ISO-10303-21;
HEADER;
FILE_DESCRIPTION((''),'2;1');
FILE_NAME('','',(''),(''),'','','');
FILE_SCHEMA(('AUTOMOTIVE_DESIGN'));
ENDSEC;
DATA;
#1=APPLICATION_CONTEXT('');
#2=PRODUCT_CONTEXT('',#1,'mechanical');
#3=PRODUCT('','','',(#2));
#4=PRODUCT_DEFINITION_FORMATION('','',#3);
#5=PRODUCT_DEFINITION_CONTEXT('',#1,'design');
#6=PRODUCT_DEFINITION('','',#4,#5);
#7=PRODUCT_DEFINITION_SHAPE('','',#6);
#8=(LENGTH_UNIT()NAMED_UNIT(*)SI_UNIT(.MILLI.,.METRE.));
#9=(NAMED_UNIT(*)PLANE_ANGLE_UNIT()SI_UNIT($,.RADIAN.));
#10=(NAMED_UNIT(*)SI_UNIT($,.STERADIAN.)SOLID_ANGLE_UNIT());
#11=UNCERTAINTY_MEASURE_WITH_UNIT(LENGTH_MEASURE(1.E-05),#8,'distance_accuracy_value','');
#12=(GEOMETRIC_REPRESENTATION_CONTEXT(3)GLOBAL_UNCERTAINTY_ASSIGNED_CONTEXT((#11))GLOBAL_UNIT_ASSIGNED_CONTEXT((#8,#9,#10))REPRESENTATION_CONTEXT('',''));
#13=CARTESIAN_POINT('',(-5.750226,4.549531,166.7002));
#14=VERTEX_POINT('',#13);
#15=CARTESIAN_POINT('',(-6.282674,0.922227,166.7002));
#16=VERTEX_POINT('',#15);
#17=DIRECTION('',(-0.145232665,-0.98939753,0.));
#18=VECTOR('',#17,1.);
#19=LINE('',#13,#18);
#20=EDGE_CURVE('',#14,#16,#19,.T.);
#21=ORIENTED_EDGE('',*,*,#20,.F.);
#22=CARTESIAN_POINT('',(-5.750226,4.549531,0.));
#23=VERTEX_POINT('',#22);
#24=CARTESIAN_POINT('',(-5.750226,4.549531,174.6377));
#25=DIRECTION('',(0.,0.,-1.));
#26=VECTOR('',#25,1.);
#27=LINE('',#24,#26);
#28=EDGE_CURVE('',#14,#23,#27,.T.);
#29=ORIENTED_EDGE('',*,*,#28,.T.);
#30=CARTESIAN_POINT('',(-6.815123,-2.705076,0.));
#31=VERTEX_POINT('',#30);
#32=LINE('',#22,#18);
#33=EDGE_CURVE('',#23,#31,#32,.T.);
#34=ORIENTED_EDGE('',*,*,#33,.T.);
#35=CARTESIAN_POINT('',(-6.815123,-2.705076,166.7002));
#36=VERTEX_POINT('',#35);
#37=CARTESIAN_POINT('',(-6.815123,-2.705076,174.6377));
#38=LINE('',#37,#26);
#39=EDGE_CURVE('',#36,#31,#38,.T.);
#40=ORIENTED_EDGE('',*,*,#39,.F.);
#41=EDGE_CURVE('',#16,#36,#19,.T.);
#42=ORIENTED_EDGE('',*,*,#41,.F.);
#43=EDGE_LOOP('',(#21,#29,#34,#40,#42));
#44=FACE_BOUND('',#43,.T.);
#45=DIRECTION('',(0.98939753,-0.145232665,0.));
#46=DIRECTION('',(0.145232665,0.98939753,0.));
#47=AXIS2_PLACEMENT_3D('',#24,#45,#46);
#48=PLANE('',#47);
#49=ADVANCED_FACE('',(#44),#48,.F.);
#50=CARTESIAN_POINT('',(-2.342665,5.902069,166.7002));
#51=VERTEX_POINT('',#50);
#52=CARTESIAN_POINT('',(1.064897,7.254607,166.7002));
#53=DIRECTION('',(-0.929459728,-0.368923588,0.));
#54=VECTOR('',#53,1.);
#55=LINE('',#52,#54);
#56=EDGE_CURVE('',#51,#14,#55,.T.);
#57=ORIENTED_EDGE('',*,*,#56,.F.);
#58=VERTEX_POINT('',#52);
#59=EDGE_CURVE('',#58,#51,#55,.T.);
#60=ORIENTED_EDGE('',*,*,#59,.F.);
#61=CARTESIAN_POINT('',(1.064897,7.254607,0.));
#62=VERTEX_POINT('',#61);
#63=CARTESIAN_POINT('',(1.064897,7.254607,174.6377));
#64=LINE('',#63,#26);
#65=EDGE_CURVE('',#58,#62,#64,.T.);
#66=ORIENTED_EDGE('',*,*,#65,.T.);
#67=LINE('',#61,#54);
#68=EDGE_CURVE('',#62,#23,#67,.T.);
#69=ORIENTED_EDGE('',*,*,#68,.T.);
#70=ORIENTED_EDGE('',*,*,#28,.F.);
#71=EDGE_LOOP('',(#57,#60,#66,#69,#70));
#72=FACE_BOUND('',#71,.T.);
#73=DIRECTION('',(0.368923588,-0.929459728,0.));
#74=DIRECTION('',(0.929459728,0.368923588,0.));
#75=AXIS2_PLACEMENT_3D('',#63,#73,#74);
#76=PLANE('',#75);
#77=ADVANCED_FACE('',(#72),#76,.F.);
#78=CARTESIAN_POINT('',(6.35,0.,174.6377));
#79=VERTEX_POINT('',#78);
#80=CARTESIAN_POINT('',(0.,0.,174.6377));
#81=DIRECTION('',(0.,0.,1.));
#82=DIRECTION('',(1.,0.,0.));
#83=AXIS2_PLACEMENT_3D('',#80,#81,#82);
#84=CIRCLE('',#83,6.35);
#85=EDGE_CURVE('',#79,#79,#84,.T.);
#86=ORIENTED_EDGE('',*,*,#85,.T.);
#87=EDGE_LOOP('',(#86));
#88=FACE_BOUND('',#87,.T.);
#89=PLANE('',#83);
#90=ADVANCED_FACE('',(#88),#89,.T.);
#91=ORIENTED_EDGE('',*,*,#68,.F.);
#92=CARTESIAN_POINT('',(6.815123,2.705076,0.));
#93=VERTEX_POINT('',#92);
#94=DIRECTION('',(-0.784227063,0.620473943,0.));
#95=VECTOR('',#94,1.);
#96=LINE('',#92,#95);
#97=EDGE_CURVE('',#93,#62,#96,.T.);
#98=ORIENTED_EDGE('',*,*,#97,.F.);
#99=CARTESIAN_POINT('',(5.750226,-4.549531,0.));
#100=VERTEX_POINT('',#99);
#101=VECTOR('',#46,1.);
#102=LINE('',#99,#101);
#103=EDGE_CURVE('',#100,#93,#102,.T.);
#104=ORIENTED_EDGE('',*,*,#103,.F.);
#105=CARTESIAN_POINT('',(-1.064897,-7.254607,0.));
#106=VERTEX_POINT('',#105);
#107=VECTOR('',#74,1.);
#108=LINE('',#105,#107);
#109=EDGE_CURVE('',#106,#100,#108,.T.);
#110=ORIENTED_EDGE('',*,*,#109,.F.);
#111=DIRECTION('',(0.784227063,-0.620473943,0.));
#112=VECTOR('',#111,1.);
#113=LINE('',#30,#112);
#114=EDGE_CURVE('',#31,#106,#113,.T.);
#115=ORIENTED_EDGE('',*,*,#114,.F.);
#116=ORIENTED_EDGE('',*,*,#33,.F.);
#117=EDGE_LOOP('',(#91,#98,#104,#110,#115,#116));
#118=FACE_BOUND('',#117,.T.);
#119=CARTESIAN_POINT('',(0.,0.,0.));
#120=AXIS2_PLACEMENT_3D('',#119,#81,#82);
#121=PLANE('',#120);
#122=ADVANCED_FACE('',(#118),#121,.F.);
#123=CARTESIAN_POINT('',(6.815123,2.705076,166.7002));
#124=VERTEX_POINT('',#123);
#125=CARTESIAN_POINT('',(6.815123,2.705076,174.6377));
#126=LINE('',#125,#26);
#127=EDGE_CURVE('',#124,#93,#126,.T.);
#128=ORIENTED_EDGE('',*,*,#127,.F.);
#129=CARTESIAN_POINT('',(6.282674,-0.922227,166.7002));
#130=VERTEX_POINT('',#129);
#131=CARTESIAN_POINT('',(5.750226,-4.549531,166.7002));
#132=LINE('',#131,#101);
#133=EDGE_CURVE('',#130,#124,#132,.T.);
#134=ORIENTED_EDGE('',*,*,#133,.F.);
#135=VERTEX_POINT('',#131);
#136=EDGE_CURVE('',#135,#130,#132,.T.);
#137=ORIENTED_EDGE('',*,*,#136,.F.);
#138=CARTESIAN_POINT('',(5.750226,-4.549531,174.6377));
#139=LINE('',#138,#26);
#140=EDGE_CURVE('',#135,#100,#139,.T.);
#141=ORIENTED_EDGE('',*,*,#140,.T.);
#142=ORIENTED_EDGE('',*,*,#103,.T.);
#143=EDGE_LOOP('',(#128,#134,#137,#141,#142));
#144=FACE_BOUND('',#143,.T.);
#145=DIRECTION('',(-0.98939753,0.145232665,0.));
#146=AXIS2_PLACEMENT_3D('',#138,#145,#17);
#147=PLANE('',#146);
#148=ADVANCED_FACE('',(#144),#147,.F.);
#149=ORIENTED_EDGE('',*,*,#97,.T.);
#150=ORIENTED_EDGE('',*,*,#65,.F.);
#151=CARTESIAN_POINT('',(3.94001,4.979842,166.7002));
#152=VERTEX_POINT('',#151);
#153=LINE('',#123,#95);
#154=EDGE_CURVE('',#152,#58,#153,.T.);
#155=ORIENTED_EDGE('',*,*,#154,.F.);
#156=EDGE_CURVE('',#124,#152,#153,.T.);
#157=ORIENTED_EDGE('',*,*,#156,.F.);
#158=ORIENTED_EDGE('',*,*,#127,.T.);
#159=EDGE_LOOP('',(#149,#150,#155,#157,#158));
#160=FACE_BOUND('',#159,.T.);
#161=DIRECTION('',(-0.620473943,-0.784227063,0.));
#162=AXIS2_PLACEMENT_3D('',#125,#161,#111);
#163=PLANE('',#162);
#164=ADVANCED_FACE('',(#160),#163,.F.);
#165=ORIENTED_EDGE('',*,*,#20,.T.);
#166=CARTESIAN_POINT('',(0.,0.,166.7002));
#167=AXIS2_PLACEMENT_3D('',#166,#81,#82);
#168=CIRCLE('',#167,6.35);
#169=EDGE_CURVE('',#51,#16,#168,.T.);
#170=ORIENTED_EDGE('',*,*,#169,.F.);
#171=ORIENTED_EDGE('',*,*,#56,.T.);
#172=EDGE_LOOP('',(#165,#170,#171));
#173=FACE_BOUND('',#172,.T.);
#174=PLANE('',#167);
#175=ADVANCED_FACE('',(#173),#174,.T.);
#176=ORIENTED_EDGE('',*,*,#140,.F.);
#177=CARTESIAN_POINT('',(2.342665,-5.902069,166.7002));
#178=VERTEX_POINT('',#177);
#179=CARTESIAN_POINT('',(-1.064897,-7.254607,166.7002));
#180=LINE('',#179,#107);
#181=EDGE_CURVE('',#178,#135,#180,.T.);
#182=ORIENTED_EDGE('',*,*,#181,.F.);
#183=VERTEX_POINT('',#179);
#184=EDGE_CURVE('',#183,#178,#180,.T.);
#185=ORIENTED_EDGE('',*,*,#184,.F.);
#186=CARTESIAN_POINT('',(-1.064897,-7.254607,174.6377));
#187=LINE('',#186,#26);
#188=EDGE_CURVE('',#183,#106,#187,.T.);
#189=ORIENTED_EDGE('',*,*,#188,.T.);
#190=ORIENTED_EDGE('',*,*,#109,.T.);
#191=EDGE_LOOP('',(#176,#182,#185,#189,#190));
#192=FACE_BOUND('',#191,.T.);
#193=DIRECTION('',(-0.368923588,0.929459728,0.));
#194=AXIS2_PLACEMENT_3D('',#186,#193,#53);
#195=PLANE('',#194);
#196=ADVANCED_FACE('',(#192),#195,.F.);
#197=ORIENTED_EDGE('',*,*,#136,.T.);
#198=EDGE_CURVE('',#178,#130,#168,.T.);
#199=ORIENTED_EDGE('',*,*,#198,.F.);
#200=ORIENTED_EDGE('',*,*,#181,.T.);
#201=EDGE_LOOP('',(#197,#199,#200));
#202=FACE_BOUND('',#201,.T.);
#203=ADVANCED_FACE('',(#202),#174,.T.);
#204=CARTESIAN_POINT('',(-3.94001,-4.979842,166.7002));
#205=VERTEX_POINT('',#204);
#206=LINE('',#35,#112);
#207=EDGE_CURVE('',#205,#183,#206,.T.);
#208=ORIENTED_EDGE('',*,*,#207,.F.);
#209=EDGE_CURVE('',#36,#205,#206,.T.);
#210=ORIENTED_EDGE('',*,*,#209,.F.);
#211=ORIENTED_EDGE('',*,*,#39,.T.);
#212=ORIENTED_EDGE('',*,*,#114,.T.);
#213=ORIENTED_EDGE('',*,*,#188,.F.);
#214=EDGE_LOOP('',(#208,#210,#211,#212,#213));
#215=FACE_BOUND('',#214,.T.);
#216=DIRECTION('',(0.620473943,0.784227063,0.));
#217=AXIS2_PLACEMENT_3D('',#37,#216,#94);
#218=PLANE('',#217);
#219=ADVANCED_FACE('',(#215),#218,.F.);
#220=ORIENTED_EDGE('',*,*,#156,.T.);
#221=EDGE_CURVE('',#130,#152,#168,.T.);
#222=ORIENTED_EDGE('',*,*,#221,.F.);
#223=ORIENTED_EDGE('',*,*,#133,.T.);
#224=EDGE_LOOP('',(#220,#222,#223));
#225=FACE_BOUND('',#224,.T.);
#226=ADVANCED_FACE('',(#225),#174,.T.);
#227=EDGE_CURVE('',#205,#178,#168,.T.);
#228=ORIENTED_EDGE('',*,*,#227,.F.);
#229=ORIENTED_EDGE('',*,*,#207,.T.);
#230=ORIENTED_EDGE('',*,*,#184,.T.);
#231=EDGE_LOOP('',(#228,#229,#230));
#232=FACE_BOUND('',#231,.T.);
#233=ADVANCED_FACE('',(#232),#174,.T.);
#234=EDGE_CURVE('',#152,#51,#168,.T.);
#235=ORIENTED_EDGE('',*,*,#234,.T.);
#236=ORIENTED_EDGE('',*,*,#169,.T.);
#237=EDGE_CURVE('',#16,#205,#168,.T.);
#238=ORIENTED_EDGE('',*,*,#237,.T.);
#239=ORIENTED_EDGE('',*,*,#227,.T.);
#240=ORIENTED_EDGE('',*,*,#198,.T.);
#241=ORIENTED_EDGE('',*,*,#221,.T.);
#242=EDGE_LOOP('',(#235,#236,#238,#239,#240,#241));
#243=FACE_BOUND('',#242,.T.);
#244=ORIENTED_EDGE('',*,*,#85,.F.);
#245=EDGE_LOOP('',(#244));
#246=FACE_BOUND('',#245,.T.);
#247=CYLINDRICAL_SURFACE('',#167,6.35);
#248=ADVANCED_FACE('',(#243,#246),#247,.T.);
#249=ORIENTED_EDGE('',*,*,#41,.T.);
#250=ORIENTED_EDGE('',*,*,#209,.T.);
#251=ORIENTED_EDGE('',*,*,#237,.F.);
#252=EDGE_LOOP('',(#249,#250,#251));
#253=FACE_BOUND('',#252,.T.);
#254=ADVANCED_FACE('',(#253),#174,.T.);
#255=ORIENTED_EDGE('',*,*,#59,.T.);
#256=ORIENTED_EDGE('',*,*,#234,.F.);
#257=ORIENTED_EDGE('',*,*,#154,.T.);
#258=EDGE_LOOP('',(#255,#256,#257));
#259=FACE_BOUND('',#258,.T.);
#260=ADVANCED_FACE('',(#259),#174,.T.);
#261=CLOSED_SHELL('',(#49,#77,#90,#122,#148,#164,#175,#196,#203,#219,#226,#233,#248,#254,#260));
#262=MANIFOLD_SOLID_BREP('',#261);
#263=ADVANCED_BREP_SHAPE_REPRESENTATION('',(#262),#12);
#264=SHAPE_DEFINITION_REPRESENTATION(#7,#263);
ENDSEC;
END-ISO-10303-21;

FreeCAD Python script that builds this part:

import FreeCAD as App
import Part
import Sketcher

V = App.Vector
Q = App.Units.Quantity


def add_polygon(sketch, points):
    """Adds a closed chain of lines whose ends are joined by coincident constraints."""
    first, n = sketch.GeometryCount, len(points)
    for a, b in zip(points, points[1:] + points[:1]):
        sketch.addGeometry(Part.LineSegment(App.Vector(*a, 0), App.Vector(*b, 0)), False)
    for i in range(n):
        sketch.addConstraint(Sketcher.Constraint("Coincident", first + i, 2, first + (i + 1) % n, 1))

doc = App.newDocument("Part")
params = doc.addObject("Spreadsheet::Sheet", "Params")
for row, (alias, value) in enumerate([
    ("pad1_length", "6.8755 in"),
    ("sketch2_diameter", "0.5 in"),
    ("pocket1_length", "0.3125 in"),
], start=1):
    params.set(f"A{row}", alias)
    params.set(f"B{row}", "=" + value)
    params.setAlias(f"B{row}", alias)

body = doc.addObject("PartDesign::Body", "Body")

sketch1 = doc.addObject("Sketcher::SketchObject", "Sketch")
body.addObject(sketch1)
sketch1.AttachmentSupport = (doc.XY_Plane, [""])
sketch1.MapMode = "FlatFace"
add_polygon(sketch1, [(1.064897, 7.254607), (-5.750226, 4.549531), (-6.815123, -2.705076), (-1.064897, -7.254607), (5.750226, -4.549531), (6.815123, 2.705076)])
sketch1.addConstraint([
    Sketcher.Constraint("Symmetric", 0, 2, 3, 2, -1, 1),
    Sketcher.Constraint("Symmetric", 1, 2, 4, 2, -1, 1),
    Sketcher.Constraint("Symmetric", 2, 2, 5, 2, -1, 1),
    Sketcher.Constraint("Equal", 0, 1),
    Sketcher.Constraint("Equal", 1, 2),
    Sketcher.Constraint("Distance", 0, 7.332348),
    Sketcher.Constraint("DistanceY", -1, 1, 0, 2, 4.549531),
    Sketcher.Constraint("DistanceY", 2, 2, 1, 2, 4.549531),
    Sketcher.Constraint("DistanceX", 0, 2, 2, 2, 4.68533),
])
pad1 = doc.addObject("PartDesign::Pad", "Pad")
body.addObject(pad1)
pad1.Profile = sketch1
pad1.setExpression("Length", "Params.pad1_length")

sketch2 = doc.addObject("Sketcher::SketchObject", "Sketch001")
body.addObject(sketch2)
sketch2.AttachmentSupport = (doc.XY_Plane, [""])
sketch2.MapMode = "FlatFace"
sketch2.AttachmentOffset = App.Placement(V(0, 0, 6.8755 * 25.4), App.Rotation())
sketch2.addGeometry([
    Part.Circle(V(0, 0, 0), V(0, 0, 1), 7.332348),
    Part.Circle(V(0, 0, 0), V(0, 0, 1), 6.35),
], False)
sketch2.addConstraint([
    Sketcher.Constraint("Coincident", 0, 3, -1, 1),
    Sketcher.Constraint("Coincident", 1, 3, -1, 1),
    Sketcher.Constraint("Diameter", 1, Q("0.5 in")),
    Sketcher.Constraint("Diameter", 0, 14.664697),
])
sketch2.setExpression("Constraints[2]", "Params.sketch2_diameter")
pocket1 = doc.addObject("PartDesign::Pocket", "Pocket")
body.addObject(pocket1)
pocket1.Profile = sketch2
pocket1.setExpression("Length", "Params.pocket1_length")

doc.recompute()
